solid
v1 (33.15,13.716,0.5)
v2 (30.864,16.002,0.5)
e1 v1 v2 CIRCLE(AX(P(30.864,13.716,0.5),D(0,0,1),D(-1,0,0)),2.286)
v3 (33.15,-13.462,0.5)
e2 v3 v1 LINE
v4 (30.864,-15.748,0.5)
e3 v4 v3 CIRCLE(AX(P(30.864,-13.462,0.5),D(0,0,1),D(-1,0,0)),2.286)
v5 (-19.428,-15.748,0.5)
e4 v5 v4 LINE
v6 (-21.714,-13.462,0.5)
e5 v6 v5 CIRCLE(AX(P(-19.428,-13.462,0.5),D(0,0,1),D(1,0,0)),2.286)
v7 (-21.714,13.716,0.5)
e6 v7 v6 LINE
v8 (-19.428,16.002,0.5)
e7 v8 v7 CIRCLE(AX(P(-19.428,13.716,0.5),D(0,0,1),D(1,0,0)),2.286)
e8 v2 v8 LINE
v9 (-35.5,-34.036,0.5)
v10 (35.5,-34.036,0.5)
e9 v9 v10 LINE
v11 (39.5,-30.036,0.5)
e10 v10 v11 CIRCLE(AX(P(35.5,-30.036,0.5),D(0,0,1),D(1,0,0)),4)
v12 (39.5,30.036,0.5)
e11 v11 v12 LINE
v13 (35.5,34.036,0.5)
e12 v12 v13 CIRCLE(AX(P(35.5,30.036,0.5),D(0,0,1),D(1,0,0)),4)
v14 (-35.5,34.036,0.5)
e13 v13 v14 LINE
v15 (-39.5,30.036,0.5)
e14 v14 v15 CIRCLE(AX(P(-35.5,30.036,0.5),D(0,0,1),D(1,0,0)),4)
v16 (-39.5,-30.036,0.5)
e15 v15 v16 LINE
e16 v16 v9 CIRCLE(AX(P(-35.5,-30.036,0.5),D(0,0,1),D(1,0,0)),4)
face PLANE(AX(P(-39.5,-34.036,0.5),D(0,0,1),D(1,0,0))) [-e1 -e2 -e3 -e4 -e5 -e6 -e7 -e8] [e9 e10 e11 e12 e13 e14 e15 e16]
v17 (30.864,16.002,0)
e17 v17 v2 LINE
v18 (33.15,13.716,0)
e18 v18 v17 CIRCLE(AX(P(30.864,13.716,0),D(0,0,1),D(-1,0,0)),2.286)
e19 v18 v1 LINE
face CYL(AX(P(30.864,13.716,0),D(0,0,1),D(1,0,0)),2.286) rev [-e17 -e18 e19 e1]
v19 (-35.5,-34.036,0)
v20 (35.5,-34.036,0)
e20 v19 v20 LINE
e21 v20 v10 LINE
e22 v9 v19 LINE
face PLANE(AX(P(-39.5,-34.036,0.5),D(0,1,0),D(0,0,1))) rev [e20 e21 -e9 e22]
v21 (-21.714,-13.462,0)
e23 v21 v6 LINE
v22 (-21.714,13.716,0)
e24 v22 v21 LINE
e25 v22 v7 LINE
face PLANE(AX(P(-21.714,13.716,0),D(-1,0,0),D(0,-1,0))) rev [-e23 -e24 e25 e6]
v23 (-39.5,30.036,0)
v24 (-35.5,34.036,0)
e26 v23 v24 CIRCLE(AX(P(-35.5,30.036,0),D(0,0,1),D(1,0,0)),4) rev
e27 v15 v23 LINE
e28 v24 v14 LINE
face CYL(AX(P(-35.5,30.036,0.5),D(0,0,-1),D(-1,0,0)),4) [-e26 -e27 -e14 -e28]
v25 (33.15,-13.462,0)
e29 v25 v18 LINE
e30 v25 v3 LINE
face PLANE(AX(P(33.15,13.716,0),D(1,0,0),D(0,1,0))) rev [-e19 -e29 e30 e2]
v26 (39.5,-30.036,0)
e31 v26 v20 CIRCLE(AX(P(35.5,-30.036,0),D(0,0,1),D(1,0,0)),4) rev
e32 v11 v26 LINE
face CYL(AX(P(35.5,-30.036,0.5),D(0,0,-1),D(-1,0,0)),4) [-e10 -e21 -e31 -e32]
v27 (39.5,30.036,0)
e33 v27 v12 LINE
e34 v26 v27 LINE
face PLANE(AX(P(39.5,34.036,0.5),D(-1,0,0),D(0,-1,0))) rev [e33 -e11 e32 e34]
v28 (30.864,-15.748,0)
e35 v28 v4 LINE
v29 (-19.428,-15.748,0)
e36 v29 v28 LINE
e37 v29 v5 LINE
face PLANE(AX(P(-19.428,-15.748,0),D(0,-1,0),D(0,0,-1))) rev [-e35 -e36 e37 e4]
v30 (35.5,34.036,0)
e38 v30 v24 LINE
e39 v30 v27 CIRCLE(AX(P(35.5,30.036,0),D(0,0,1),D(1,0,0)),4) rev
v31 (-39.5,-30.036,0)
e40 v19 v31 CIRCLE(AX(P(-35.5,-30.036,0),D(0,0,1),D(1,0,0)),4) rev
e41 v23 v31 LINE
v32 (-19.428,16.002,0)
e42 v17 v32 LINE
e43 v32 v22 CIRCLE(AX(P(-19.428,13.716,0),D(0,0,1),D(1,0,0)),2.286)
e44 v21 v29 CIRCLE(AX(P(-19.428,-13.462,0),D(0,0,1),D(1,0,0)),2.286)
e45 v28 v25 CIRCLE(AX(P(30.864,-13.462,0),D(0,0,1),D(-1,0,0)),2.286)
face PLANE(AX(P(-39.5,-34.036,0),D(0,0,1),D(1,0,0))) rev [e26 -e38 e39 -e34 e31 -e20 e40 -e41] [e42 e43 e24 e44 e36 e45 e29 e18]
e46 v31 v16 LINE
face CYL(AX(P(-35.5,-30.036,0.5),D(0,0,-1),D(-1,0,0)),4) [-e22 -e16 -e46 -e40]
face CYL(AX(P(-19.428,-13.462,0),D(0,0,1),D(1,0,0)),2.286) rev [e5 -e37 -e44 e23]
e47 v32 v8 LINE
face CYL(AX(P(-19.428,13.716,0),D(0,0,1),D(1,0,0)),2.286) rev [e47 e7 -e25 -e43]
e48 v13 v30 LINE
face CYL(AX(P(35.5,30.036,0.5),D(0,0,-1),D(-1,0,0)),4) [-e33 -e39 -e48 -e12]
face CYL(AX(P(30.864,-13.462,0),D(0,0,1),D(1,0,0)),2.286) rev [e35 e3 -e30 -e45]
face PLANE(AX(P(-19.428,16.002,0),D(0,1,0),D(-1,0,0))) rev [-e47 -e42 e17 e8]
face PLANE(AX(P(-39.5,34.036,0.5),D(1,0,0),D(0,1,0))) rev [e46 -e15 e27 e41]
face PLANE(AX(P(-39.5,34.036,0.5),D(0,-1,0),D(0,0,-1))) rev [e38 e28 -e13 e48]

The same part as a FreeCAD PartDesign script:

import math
import FreeCAD as App
import Part
import Sketcher

V = App.Vector
Q = App.Units.Quantity


def edges_at(feature, points):
    """Names of the edges that pass closest to the given points."""
    edges = feature.Shape.Edges
    near = lambda p: min(range(len(edges)), key=lambda i: edges[i].distToShape(Part.Vertex(*p))[0])
    return sorted({f"Edge{near(p) + 1}" for p in points})


def add_polygon(sketch, points):
    """Adds a closed chain of lines whose ends are joined by coincident constraints."""
    first, n = sketch.GeometryCount, len(points)
    for a, b in zip(points, points[1:] + points[:1]):
        sketch.addGeometry(Part.LineSegment(App.Vector(*a, 0), App.Vector(*b, 0)), False)
    for i in range(n):
        sketch.addConstraint(Sketcher.Constraint("Coincident", first + i, 2, first + (i + 1) % n, 1))

doc = App.newDocument("Part")
body = doc.addObject("PartDesign::Body", "Body")

sketch1 = body.newObject("Sketcher::SketchObject", "Sketch")
sketch1.AttachmentSupport = (doc.getObject("XY_Plane"), [""])
sketch1.MapMode = "FlatFace"
add_polygon(sketch1, [(-40, 34), (-40, -34), (40, -34), (40, 34)])
sketch1.addConstraint([
    Sketcher.Constraint("Vertical", 0),
    Sketcher.Constraint("Horizontal", 1),
    Sketcher.Constraint("Vertical", 2),
    Sketcher.Constraint("Horizontal", 3),
    Sketcher.Constraint("Symmetric", 0, 2, 2, 2, -1, 1),
    Sketcher.Constraint("DistanceY", 0, 2, 0, 1, Q("2.68 in")),
    Sketcher.Constraint("DistanceX", 1, 1, 1, 2, 79.0),
])
pad1 = body.newObject("PartDesign::Pad", "Pad")
pad1.Profile = sketch1
pad1.Length = 0.5
doc.recompute()

fillet = body.newObject("PartDesign::Fillet", "Fillet")
fillet.Base = (pad1, edges_at(pad1, [
    (-39.5, 34.036, 0.25),
    (39.5, 34.036, 0.25),
    (39.5, -34.036, 0.25),
    (-39.5, -34.036, 0.25),
]))
fillet.Radius = 4

sketch2 = body.newObject("Sketcher::SketchObject", "Sketch001")
sketch2.AttachmentSupport = (doc.getObject("XY_Plane"), [""])
sketch2.MapMode = "FlatFace"
sketch2.AttachmentOffset = App.Placement(V(0, 0, 0.5), App.Rotation())
sketch2.addGeometry([
    Part.LineSegment(V(30.9, 16, 0), V(-19.4, 16, 0)),
    Part.ArcOfCircle(Part.Circle(V(-19.4, 13.7, 0), V(0, 0, 1), 2.3), math.radians(90), math.radians(180)),
    Part.LineSegment(V(-21.7, 13.7, 0), V(-21.7, -13.5, 0)),
    Part.ArcOfCircle(Part.Circle(V(-19.4, -13.5, 0), V(0, 0, 1), 2.3), math.radians(180), math.radians(270)),
    Part.LineSegment(V(-19.4, -15.7, 0), V(30.9, -15.7, 0)),
    Part.ArcOfCircle(Part.Circle(V(30.9, -13.5, 0), V(0, 0, 1), 2.3), math.radians(-90), math.radians(0)),
    Part.LineSegment(V(33.1, -13.5, 0), V(33.1, 13.7, 0)),
    Part.ArcOfCircle(Part.Circle(V(30.9, 13.7, 0), V(0, 0, 1), 2.3), math.radians(0), math.radians(90)),
], False)
sketch2.addConstraint([
    Sketcher.Constraint("Tangent", 0, 2, 1, 1),
    Sketcher.Constraint("Tangent", 1, 2, 2, 1),
    Sketcher.Constraint("Tangent", 2, 2, 3, 1),
    Sketcher.Constraint("Tangent", 3, 2, 4, 1),
    Sketcher.Constraint("Tangent", 4, 2, 5, 1),
    Sketcher.Constraint("Tangent", 5, 2, 6, 1),
    Sketcher.Constraint("Tangent", 6, 2, 7, 1),
    Sketcher.Constraint("Tangent", 7, 2, 0, 1),
    Sketcher.Constraint("Horizontal", 0),
    Sketcher.Constraint("Vertical", 2),
    Sketcher.Constraint("Horizontal", 4),
    Sketcher.Constraint("Vertical", 6),
    Sketcher.Constraint("Equal", 1, 3),
    Sketcher.Constraint("Equal", 3, 5),
    Sketcher.Constraint("Equal", 5, 7),
    Sketcher.Constraint("Radius", 1, Q("0.09 in")),
    Sketcher.Constraint("DistanceX", 0, 2, 0, 1, Q("1.98 in")),
    Sketcher.Constraint("DistanceY", 2, 2, 2, 1, Q("1.07 in")),
    Sketcher.Constraint("DistanceY", -1, 1, 1, 3, Q("0.54 in")),
    Sketcher.Constraint("DistanceX", 1, 3, -1, 1, 19.428),
])
pocket1 = body.newObject("PartDesign::Pocket", "Pocket")
pocket1.Profile = sketch2
pocket1.Type = "ThroughAll"

doc.recompute()
